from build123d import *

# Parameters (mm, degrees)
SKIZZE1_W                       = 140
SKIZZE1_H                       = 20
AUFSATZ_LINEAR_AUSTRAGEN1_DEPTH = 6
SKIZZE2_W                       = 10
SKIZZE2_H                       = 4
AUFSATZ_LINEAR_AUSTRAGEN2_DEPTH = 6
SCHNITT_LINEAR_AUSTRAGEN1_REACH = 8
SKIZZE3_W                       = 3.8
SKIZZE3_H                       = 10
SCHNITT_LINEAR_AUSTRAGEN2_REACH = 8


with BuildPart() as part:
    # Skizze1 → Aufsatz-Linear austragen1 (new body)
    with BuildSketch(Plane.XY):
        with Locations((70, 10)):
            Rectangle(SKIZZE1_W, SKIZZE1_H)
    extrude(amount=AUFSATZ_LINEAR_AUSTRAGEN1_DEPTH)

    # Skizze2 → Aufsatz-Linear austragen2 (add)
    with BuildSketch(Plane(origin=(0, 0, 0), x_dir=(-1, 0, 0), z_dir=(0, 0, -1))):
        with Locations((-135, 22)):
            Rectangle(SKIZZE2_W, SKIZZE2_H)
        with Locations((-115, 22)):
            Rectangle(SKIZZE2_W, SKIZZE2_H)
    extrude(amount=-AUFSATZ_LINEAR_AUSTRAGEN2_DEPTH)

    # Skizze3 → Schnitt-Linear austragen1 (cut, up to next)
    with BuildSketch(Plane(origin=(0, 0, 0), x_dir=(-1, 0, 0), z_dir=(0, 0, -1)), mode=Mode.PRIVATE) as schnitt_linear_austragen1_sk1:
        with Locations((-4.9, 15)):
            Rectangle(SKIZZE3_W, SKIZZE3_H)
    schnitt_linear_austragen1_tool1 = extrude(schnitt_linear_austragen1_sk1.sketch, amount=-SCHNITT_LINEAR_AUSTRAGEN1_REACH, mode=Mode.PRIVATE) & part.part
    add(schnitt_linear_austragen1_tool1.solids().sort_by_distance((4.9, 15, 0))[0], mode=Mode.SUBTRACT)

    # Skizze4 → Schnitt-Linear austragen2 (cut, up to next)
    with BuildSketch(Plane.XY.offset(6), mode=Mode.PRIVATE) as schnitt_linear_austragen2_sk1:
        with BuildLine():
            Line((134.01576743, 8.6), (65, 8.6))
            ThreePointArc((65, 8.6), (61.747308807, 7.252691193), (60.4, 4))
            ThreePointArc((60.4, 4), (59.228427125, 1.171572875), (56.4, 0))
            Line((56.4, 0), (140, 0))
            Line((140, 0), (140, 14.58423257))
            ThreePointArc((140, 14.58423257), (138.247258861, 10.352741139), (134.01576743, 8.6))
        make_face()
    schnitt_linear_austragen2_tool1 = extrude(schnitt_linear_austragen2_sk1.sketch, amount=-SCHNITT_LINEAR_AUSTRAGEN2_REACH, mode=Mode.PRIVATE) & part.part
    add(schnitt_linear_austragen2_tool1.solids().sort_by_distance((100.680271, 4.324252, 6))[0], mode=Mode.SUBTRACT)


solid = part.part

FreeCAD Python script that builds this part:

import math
import FreeCAD as App
import Part
import Sketcher
Q = App.Units.Quantity


def add_polygon(sketch, points):
    """Adds a closed chain of lines whose ends are joined by coincident constraints."""
    first, n = sketch.GeometryCount, len(points)
    for a, b in zip(points, points[1:] + points[:1]):
        sketch.addGeometry(Part.LineSegment(App.Vector(*a, 0), App.Vector(*b, 0)), False)
    for i in range(n):
        sketch.addConstraint(Sketcher.Constraint("Coincident", first + i, 2, first + (i + 1) % n, 1))

doc = App.newDocument("Part")
body = doc.addObject("PartDesign::Body", "Body")

sketch1 = doc.addObject("Sketcher::SketchObject", "Sketch")
body.addObject(sketch1)
sketch1.AttachmentSupport = (doc.XY_Plane, [""])
sketch1.MapMode = "FlatFace"
add_polygon(sketch1, [(0, 20), (0, 0), (140, 0), (140, 20)])
sketch1.addConstraint([
    Sketcher.Constraint("Vertical", 0),
    Sketcher.Constraint("Horizontal", 1),
    Sketcher.Constraint("Vertical", 2),
    Sketcher.Constraint("Horizontal", 3),
    Sketcher.Constraint("Coincident", 0, 2, -1, 1),
    Sketcher.Constraint("DistanceX", 1, 1, 1, 2, Q("140 mm")),
    Sketcher.Constraint("DistanceY", 0, 2, 0, 1, Q("20 mm")),
])
pad1 = doc.addObject("PartDesign::Pad", "Pad")
body.addObject(pad1)
pad1.Profile = sketch1
pad1.Length = 6

sketch2 = doc.addObject("Sketcher::SketchObject", "Sketch001")
body.addObject(sketch2)
sketch2.AttachmentSupport = (doc.XY_Plane, [""])
sketch2.MapMode = "FlatFace"
add_polygon(sketch2, [(140, 24), (140, 20), (130, 20), (130, 24)])
add_polygon(sketch2, [(120, 24), (120, 20), (110, 20), (110, 24)])
sketch2.addConstraint([
    Sketcher.Constraint("Vertical", 0),
    Sketcher.Constraint("Horizontal", 1),
    Sketcher.Constraint("Vertical", 2),
    Sketcher.Constraint("Horizontal", 3),
    Sketcher.Constraint("Vertical", 4),
    Sketcher.Constraint("Horizontal", 5),
    Sketcher.Constraint("Vertical", 6),
    Sketcher.Constraint("Horizontal", 7),
    Sketcher.Constraint("Horizontal", 1, 2, 4, 2),
    Sketcher.Constraint("Horizontal", 3, 2, 6, 2),
    Sketcher.Constraint("Equal", 3, 5),
    Sketcher.Constraint("DistanceX", 1, 2, 1, 1, Q("10 mm")),
    Sketcher.Constraint("DistanceY", 0, 2, 0, 1, Q("4 mm")),
    Sketcher.Constraint("DistanceX", -1, 1, 0, 2, Q("140 mm")),
    Sketcher.Constraint("DistanceY", -1, 1, 0, 2, Q("20 mm")),
    Sketcher.Constraint("DistanceX", -1, 1, 4, 2, Q("120 mm")),
])
pad2 = doc.addObject("PartDesign::Pad", "Pad001")
body.addObject(pad2)
pad2.Profile = sketch2
pad2.Length = 6

sketch3 = doc.addObject("Sketcher::SketchObject", "Sketch002")
body.addObject(sketch3)
sketch3.AttachmentSupport = (doc.XY_Plane, [""])
sketch3.MapMode = "FlatFace"
add_polygon(sketch3, [(6.8, 20), (6.8, 10), (3, 10), (3, 20)])
sketch3.addConstraint([
    Sketcher.Constraint("Vertical", 0),
    Sketcher.Constraint("Horizontal", 1),
    Sketcher.Constraint("Vertical", 2),
    Sketcher.Constraint("Horizontal", 3),
    Sketcher.Constraint("DistanceY", 0, 2, 0, 1, Q("10 mm")),
    Sketcher.Constraint("DistanceX", 1, 2, 1, 1, Q("3.8 mm")),
    Sketcher.Constraint("DistanceY", -1, 1, 0, 2, Q("10 mm")),
    Sketcher.Constraint("DistanceX", -1, 1, 1, 2, Q("3 mm")),
])
pocket1 = doc.addObject("PartDesign::Pocket", "Pocket")
body.addObject(pocket1)
pocket1.Profile = sketch3
pocket1.Type = "UpToFirst"
pocket1.Reversed = True

sketch4 = doc.addObject("Sketcher::SketchObject", "Sketch003")
body.addObject(sketch4)
sketch4.AttachmentSupport = (doc.XY_Plane, [""])
sketch4.MapMode = "FlatFace"
sketch4.AttachmentOffset = App.Placement(App.Vector(0, 0, 6), App.Rotation())
sketch4.addGeometry([
    Part.LineSegment(App.Vector(134, 8.6, 0), App.Vector(65, 8.6, 0)),
    Part.ArcOfCircle(Part.Circle(App.Vector(65, 4, 0), App.Vector(0, 0, 1), 4.6), math.radians(90), math.radians(180)),
    Part.ArcOfCircle(Part.Circle(App.Vector(56.4, 4, 0), App.Vector(0, 0, 1), 4), math.radians(-90), math.radians(0)),
    Part.LineSegment(App.Vector(56.4, 0, 0), App.Vector(140, 0, 0)),
    Part.LineSegment(App.Vector(140, 0, 0), App.Vector(140, 14.6, 0)),
    Part.ArcOfCircle(Part.Circle(App.Vector(134, 14.6, 0), App.Vector(0, 0, 1), 6), math.radians(-90), math.radians(0)),
], False)
sketch4.addConstraint([
    Sketcher.Constraint("Tangent", 0, 2, 1, 1),
    Sketcher.Constraint("Tangent", 1, 2, 2, 2),
    Sketcher.Constraint("Tangent", 2, 1, 3, 1),
    Sketcher.Constraint("Coincident", 3, 2, 4, 1),
    Sketcher.Constraint("Tangent", 4, 2, 5, 2),
    Sketcher.Constraint("Tangent", 5, 1, 0, 1),
    Sketcher.Constraint("Horizontal", 0),
    Sketcher.Constraint("Horizontal", 3),
    Sketcher.Constraint("Vertical", 4),
    Sketcher.Constraint("PointOnObject", 2, 1, -1),
    Sketcher.Constraint("Horizontal", 1, 3, 2, 3),
    Sketcher.Constraint("Radius", 2, Q("4 mm")),
    Sketcher.Constraint("Radius", 1, Q("4.6 mm")),
    Sketcher.Constraint("DistanceX", 3, 1, 3, 2, Q("83.6 mm")),
    Sketcher.Constraint("DistanceX", -1, 1, 1, 3, Q("65 mm")),
    Sketcher.Constraint("Radius", 5, Q("5.984233 mm")),
])
pocket2 = doc.addObject("PartDesign::Pocket", "Pocket001")
body.addObject(pocket2)
pocket2.Profile = sketch4
pocket2.Type = "UpToFirst"

doc.recompute()
